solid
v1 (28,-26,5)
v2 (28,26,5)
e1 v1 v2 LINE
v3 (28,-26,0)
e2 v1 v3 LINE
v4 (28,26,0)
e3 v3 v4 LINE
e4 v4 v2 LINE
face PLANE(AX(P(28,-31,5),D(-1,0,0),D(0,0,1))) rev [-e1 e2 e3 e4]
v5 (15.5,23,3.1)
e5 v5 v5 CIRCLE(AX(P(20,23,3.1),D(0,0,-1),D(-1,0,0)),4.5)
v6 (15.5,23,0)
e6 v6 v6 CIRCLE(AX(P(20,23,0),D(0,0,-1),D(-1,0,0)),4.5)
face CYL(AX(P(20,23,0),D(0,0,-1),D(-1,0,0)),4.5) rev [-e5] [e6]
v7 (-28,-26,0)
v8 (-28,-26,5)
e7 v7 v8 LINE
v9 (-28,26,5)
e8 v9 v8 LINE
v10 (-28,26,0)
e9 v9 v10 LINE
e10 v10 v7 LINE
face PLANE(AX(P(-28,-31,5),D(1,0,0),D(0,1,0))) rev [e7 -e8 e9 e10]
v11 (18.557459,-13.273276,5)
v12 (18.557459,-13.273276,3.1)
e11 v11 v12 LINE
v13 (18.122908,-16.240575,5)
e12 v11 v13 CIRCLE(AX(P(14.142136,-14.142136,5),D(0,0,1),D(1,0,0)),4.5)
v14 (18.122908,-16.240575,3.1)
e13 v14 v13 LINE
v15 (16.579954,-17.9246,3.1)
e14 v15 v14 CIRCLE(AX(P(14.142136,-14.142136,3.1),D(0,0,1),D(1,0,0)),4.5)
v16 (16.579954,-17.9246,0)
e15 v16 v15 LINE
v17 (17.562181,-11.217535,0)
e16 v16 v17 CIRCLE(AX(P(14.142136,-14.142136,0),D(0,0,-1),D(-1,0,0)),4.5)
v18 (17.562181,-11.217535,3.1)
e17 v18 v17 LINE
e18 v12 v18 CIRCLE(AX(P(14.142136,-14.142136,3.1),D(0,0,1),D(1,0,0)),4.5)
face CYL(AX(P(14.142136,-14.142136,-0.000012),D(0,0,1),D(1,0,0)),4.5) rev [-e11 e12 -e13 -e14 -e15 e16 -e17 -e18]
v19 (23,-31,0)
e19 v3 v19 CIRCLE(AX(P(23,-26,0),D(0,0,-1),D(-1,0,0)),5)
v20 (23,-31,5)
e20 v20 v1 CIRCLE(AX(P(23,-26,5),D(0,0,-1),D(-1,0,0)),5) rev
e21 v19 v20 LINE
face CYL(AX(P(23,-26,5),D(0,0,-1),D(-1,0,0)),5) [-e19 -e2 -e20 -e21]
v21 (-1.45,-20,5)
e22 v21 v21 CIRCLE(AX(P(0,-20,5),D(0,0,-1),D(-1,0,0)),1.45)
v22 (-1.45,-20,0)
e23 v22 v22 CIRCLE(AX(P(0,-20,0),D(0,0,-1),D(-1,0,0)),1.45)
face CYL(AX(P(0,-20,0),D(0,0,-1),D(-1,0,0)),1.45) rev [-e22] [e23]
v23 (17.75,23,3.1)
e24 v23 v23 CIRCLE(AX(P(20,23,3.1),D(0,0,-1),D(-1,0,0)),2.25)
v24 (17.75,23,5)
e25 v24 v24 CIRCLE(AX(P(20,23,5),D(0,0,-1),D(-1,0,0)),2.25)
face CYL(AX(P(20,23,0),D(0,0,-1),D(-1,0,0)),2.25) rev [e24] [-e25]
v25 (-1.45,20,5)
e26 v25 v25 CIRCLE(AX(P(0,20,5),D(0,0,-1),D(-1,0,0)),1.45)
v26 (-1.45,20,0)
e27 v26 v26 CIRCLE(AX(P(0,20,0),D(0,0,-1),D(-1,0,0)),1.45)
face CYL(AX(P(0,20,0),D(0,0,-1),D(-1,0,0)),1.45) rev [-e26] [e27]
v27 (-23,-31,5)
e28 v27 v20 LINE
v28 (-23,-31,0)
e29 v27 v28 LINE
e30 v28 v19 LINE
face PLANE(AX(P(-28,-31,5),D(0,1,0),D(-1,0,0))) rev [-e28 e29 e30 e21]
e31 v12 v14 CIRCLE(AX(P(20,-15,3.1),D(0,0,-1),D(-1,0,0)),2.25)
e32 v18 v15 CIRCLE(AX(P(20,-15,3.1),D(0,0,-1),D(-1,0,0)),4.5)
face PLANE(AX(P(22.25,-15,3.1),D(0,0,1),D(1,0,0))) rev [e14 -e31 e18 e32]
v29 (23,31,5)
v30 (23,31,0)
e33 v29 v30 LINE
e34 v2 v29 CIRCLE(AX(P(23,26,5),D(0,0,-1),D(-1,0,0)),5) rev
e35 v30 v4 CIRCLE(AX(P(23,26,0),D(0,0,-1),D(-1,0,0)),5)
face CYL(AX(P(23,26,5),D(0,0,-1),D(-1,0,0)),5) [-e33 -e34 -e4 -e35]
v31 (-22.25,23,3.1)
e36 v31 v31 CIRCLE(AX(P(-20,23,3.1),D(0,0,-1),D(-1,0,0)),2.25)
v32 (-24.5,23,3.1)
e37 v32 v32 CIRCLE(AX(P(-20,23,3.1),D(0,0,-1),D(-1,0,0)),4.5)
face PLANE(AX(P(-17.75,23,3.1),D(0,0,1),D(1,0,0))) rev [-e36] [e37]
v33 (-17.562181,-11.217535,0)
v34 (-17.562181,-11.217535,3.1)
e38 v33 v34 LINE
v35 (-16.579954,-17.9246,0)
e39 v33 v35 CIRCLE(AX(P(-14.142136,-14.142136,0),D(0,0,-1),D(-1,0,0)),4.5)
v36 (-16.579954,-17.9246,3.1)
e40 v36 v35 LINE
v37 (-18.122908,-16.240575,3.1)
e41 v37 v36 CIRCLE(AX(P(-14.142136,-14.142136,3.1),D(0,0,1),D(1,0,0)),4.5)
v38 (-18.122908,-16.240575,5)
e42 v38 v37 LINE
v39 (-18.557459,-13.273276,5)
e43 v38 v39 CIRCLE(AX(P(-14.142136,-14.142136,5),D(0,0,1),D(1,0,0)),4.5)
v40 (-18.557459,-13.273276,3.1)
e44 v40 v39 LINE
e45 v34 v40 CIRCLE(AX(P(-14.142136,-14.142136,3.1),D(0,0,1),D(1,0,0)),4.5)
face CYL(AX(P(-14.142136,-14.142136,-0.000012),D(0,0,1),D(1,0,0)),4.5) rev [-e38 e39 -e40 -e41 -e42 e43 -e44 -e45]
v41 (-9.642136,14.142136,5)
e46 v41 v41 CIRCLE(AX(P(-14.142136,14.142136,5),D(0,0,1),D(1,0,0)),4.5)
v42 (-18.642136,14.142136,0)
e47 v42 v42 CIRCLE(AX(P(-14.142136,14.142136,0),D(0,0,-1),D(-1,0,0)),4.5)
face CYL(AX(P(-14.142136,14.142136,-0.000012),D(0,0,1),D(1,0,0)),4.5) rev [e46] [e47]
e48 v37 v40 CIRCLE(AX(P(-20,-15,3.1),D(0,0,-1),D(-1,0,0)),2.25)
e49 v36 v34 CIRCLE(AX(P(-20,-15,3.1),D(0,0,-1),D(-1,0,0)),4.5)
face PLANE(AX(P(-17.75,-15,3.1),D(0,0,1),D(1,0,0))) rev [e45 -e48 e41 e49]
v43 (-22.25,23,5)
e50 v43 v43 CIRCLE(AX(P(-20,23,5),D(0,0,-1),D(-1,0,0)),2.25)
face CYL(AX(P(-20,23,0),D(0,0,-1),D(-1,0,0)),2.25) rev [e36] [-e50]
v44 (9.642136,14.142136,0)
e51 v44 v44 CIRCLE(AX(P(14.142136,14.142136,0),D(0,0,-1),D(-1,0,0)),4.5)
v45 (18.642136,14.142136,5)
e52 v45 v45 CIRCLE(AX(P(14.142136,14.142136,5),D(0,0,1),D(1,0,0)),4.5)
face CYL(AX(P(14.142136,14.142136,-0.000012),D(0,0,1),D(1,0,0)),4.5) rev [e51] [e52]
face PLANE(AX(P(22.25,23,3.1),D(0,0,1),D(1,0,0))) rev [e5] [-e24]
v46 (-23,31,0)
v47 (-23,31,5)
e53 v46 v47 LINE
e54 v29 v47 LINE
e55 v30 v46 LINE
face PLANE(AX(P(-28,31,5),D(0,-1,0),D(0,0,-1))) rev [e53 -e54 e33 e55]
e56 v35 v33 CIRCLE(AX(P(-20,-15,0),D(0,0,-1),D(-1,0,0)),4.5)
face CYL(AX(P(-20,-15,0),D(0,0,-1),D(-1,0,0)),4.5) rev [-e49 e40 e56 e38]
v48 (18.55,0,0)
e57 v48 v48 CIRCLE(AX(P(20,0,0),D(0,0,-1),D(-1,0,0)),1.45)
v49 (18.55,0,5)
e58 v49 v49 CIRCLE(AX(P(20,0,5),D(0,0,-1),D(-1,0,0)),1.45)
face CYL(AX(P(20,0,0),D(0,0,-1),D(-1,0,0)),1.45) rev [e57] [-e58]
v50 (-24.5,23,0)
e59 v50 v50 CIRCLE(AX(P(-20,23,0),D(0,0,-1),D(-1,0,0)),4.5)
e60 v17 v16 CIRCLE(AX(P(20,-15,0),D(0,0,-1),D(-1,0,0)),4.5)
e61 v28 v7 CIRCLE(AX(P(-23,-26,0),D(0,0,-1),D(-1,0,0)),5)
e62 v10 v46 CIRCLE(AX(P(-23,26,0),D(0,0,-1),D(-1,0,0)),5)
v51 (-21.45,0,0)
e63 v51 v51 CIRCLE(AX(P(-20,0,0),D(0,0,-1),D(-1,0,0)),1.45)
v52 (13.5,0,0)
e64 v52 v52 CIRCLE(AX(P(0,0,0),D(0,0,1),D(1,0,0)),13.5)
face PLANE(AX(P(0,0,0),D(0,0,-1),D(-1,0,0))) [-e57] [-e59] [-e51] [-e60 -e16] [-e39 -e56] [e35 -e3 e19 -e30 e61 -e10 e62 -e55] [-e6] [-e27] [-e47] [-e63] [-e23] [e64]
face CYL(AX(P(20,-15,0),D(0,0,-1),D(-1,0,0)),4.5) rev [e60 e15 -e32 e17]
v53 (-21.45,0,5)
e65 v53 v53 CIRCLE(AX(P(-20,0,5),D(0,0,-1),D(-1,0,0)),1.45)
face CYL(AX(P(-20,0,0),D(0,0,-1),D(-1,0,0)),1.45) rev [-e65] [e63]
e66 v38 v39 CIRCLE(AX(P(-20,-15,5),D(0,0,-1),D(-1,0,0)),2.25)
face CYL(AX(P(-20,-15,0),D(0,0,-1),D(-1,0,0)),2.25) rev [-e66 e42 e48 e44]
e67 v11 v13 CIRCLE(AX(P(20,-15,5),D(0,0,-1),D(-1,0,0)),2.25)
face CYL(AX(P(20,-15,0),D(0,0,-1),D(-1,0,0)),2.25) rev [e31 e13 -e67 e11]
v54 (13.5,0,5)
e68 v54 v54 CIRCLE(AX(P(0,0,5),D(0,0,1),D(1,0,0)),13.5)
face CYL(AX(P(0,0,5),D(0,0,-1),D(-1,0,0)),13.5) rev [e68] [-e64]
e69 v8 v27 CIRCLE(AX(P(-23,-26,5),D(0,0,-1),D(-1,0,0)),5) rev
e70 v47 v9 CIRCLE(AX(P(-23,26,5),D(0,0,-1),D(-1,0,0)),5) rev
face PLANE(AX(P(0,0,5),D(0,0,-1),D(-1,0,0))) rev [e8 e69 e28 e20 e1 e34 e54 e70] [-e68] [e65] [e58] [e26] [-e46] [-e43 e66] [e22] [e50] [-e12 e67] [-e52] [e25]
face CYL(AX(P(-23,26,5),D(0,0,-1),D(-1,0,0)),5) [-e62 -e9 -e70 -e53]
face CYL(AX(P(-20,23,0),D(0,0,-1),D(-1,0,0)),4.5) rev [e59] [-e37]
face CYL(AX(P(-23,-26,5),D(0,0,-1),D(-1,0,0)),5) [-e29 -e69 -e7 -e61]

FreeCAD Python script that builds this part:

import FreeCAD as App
import Part
import Sketcher


def edges_at(feature, points):
    """Names of the edges that pass closest to the given points."""
    edges = feature.Shape.Edges
    near = lambda p: min(range(len(edges)), key=lambda i: edges[i].distToShape(Part.Vertex(*p))[0])
    return sorted({f"Edge{near(p) + 1}" for p in points})

doc = App.newDocument("Part")
params = doc.addObject("Spreadsheet::Sheet", "Params")
for row, (alias, value) in enumerate([
    ("sketch1_diameter", "27 mm"),
    ("sketch1_width", "56 mm"),
    ("sketch1_height", "62 mm"),
    ("pad1_length", "5 mm"),
    ("sketch2_diameter", "2.9 mm"),
    ("hole_diameter", "2.9 mm"),
    ("sketch3_diameter", "4.5 mm"),
    ("hole2_diameter", "4.5 mm"),
    ("hole2_cbore_diameter", "9 mm"),
    ("hole2_cbore_depth", "3.1 mm"),
    ("fillet_radius", "5 mm"),
    ("sketch4_diameter", "9 mm"),
], start=1):
    params.set(f"A{row}", alias)
    params.set(f"B{row}", "=" + value)
    params.setAlias(f"B{row}", alias)

body = doc.addObject("PartDesign::Body", "Body")

# Sketch on XY plane
sketch1 = doc.addObject("Sketcher::SketchObject", "Sketch")
body.addObject(sketch1)
sketch1.AttachmentSupport = (doc.XY_Plane, [""])
sketch1.MapMode = "FlatFace"
sketch1.addGeometry(Part.LineSegment(App.Vector(-28, 31, 0), App.Vector(-28, -31, 0)), False)
sketch1.addGeometry(Part.LineSegment(App.Vector(-28, -31, 0), App.Vector(28, -31, 0)), False)
sketch1.addGeometry(Part.LineSegment(App.Vector(28, -31, 0), App.Vector(28, 31, 0)), False)
sketch1.addGeometry(Part.LineSegment(App.Vector(28, 31, 0), App.Vector(-28, 31, 0)), False)
sketch1.addGeometry(Part.Circle(App.Vector(0, 0, 0), App.Vector(0, 0, 1), 14), False)
sketch1.addConstraint(Sketcher.Constraint("Coincident", 0, 2, 1, 1))
sketch1.addConstraint(Sketcher.Constraint("Coincident", 1, 2, 2, 1))
sketch1.addConstraint(Sketcher.Constraint("Coincident", 2, 2, 3, 1))
sketch1.addConstraint(Sketcher.Constraint("Coincident", 3, 2, 0, 1))
sketch1.addConstraint(Sketcher.Constraint("Vertical", 0))
sketch1.addConstraint(Sketcher.Constraint("Horizontal", 1))
sketch1.addConstraint(Sketcher.Constraint("Vertical", 2))
sketch1.addConstraint(Sketcher.Constraint("Horizontal", 3))
sketch1.addConstraint(Sketcher.Constraint("Coincident", 4, 3, -1, 1))
sketch1.addConstraint(Sketcher.Constraint("Symmetric", 0, 2, 2, 2, -1, 1))
sketch1.addConstraint(Sketcher.Constraint("Diameter", 4, 27.0))
sketch1.addConstraint(Sketcher.Constraint("DistanceX", 1, 1, 1, 2, 56.0))
sketch1.addConstraint(Sketcher.Constraint("DistanceY", 0, 2, 0, 1, 62.0))
sketch1.setExpression("Constraints[10]", "Params.sketch1_diameter")
sketch1.setExpression("Constraints[11]", "Params.sketch1_width")
sketch1.setExpression("Constraints[12]", "Params.sketch1_height")
pad1 = doc.addObject("PartDesign::Pad", "Pad")
body.addObject(pad1)
pad1.Profile = sketch1
pad1.setExpression("Length", "Params.pad1_length")

# Sketch on XY plane
sketch2 = doc.addObject("Sketcher::SketchObject", "Sketch001")
body.addObject(sketch2)
sketch2.AttachmentSupport = (doc.XY_Plane, [""])
sketch2.MapMode = "FlatFace"
sketch2.addGeometry(Part.Circle(App.Vector(0, 20, 0), App.Vector(0, 0, 1), 1.4), False)
sketch2.addGeometry(Part.Circle(App.Vector(0, -20, 0), App.Vector(0, 0, 1), 1.4), False)
sketch2.addGeometry(Part.Circle(App.Vector(-20, 0, 0), App.Vector(0, 0, 1), 1.4), False)
sketch2.addGeometry(Part.Circle(App.Vector(20, 0, 0), App.Vector(0, 0, 1), 1.4), False)
sketch2.addConstraint(Sketcher.Constraint("Equal", 0, 1))
sketch2.addConstraint(Sketcher.Constraint("Equal", 1, 2))
sketch2.addConstraint(Sketcher.Constraint("Equal", 2, 3))
sketch2.addConstraint(Sketcher.Constraint("Symmetric", 0, 3, 1, 3, -1, 1))
sketch2.addConstraint(Sketcher.Constraint("Symmetric", 2, 3, 3, 3, -1, 1))
sketch2.addConstraint(Sketcher.Constraint("PointOnObject", 0, 3, -2))
sketch2.addConstraint(Sketcher.Constraint("PointOnObject", 2, 3, -1))
sketch2.addConstraint(Sketcher.Constraint("Diameter", 0, 2.9))
sketch2.addConstraint(Sketcher.Constraint("DistanceY", -1, 1, 0, 3, 20.0))
sketch2.addConstraint(Sketcher.Constraint("DistanceX", 2, 3, -1, 1, 20.0))
sketch2.setExpression("Constraints[7]", "Params.sketch2_diameter")
doc.recompute()
hole = doc.addObject("PartDesign::Hole", "Hole")
body.addObject(hole)
hole.Profile = sketch2
hole.ThreadType = "None"
hole.setExpression("Diameter", "Params.hole_diameter")
hole.DepthType = "ThroughAll"
hole.Reversed = True

# Sketch on XY plane
sketch3 = doc.addObject("Sketcher::SketchObject", "Sketch002")
body.addObject(sketch3)
sketch3.AttachmentSupport = (doc.XY_Plane, [""])
sketch3.MapMode = "FlatFace"
sketch3.addGeometry(Part.Circle(App.Vector(20, 23, 0), App.Vector(0, 0, 1), 2.2), False)
sketch3.addGeometry(Part.Circle(App.Vector(-20, 23, 0), App.Vector(0, 0, 1), 2.2), False)
sketch3.addGeometry(Part.Circle(App.Vector(-20, -15, 0), App.Vector(0, 0, 1), 2.2), False)
sketch3.addGeometry(Part.Circle(App.Vector(20, -15, 0), App.Vector(0, 0, 1), 2.2), False)
sketch3.addConstraint(Sketcher.Constraint("Equal", 0, 1))
sketch3.addConstraint(Sketcher.Constraint("Equal", 1, 2))
sketch3.addConstraint(Sketcher.Constraint("Equal", 2, 3))
sketch3.addConstraint(Sketcher.Constraint("Symmetric", 0, 3, 1, 3, -2))
sketch3.addConstraint(Sketcher.Constraint("Symmetric", 2, 3, 3, 3, -2))
sketch3.addConstraint(Sketcher.Constraint("Vertical", 1, 3, 2, 3))
sketch3.addConstraint(Sketcher.Constraint("Diameter", 0, 4.5))
sketch3.addConstraint(Sketcher.Constraint("DistanceX", -1, 1, 0, 3, 20.0))
sketch3.addConstraint(Sketcher.Constraint("DistanceY", -1, 1, 0, 3, 23.0))
sketch3.addConstraint(Sketcher.Constraint("DistanceY", 2, 3, -1, 1, 15.0))
sketch3.setExpression("Constraints[6]", "Params.sketch3_diameter")
doc.recompute()
hole2 = doc.addObject("PartDesign::Hole", "Hole001")
body.addObject(hole2)
hole2.Profile = sketch3
hole2.ThreadType = "None"
hole2.setExpression("Diameter", "Params.hole2_diameter")
hole2.DepthType = "ThroughAll"
hole2.HoleCutType = "Counterbore"
hole2.setExpression("HoleCutDiameter", "Params.hole2_cbore_diameter")
hole2.setExpression("HoleCutDepth", "Params.hole2_cbore_depth")
hole2.Reversed = True
doc.recompute()

fillet = doc.addObject("PartDesign::Fillet", "Fillet")
body.addObject(fillet)
fillet.Base = (hole2, edges_at(hole2, [
    (28, -31, 2.5),
    (-28, -31, 2.5),
    (-28, 31, 2.5),
    (28, 31, 2.5),
]))
fillet.setExpression("Radius", "Params.fillet_radius")

# Sketch on XY plane
sketch4 = doc.addObject("Sketcher::SketchObject", "Sketch003")
body.addObject(sketch4)
sketch4.AttachmentSupport = (doc.XY_Plane, [""])
sketch4.MapMode = "FlatFace"
sketch4.addGeometry(Part.Circle(App.Vector(-14.1, -14.1, 0), App.Vector(0, 0, 1), 4.5), False)
sketch4.addGeometry(Part.Circle(App.Vector(-14.1, 14.1, 0), App.Vector(0, 0, 1), 4.5), False)
sketch4.addGeometry(Part.Circle(App.Vector(14.1, 14.1, 0), App.Vector(0, 0, 1), 4.5), False)
sketch4.addGeometry(Part.Circle(App.Vector(14.1, -14.1, 0), App.Vector(0, 0, 1), 4.5), False)
sketch4.addConstraint(Sketcher.Constraint("Equal", 0, 1))
sketch4.addConstraint(Sketcher.Constraint("Equal", 1, 2))
sketch4.addConstraint(Sketcher.Constraint("Equal", 2, 3))
sketch4.addConstraint(Sketcher.Constraint("Symmetric", 0, 3, 2, 3, -1, 1))
sketch4.addConstraint(Sketcher.Constraint("Symmetric", 1, 3, 3, 3, -1, 1))
sketch4.addConstraint(Sketcher.Constraint("Symmetric", 1, 3, 2, 3, -2))
sketch4.addConstraint(Sketcher.Constraint("Diameter", 0, 9.0))
sketch4.addConstraint(Sketcher.Constraint("DistanceY", 0, 3, 1, 3, 28.284271))
sketch4.addConstraint(Sketcher.Constraint("DistanceX", 1, 3, 2, 3, 28.284271))
sketch4.setExpression("Constraints[6]", "Params.sketch4_diameter")
pocket1 = doc.addObject("PartDesign::Pocket", "Pocket")
body.addObject(pocket1)
pocket1.Profile = sketch4
pocket1.Type = "ThroughAll"
pocket1.Midplane = True

doc.recompute()
